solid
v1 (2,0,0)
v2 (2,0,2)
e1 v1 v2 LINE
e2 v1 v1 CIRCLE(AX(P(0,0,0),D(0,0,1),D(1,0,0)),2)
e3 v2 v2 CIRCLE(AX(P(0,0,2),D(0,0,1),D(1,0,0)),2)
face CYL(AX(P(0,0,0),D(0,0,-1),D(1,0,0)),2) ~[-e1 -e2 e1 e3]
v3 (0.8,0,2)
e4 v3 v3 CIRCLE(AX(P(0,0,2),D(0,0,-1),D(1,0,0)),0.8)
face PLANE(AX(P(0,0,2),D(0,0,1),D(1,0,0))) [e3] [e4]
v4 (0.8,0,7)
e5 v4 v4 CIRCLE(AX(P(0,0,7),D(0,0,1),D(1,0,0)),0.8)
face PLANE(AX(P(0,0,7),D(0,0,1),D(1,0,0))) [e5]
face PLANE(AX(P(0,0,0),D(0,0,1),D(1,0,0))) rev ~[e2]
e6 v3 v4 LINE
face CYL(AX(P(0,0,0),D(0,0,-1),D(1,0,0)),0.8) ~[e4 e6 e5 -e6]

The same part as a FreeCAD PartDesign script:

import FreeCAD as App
import Part
import Sketcher
Q = App.Units.Quantity

doc = App.newDocument("Part")
body = doc.addObject("PartDesign::Body", "Body")

# Sketch on XY plane
sketch1 = body.newObject("Sketcher::SketchObject", "Sketch")
sketch1.AttachmentSupport = (doc.getObject("XY_Plane"), [""])
sketch1.MapMode = "FlatFace"
sketch1.addGeometry(Part.Circle(App.Vector(0, 0, 0), App.Vector(0, 0, 1), 2), False)
sketch1.addConstraint([
    Sketcher.Constraint("Coincident", 0, 3, -1, 1),
    Sketcher.Constraint("Diameter", 0, Q("4 mm")),
])
pad1 = body.newObject("PartDesign::Pad", "Pad")
pad1.Profile = sketch1
pad1.Length = 2
body2 = doc.addObject("PartDesign::Body", "Body001")

# Sketch on XY plane
sketch2 = body2.newObject("Sketcher::SketchObject", "Sketch001")
sketch2.AttachmentSupport = (doc.getObject("XY_Plane001"), [""])
sketch2.MapMode = "FlatFace"
sketch2.addGeometry(Part.Circle(App.Vector(0, 0, 0), App.Vector(0, 0, 1), 0.8), False)
sketch2.addConstraint([
    Sketcher.Constraint("Coincident", 0, 3, -1, 1),
    Sketcher.Constraint("Diameter", 0, Q("1.6 mm")),
])
pad2 = body2.newObject("PartDesign::Pad", "Pad001")
pad2.Profile = sketch2
pad2.Length = 7
doc.recompute()

boolean = body2.newObject("PartDesign::Boolean", "Boolean")
boolean.Type = "Fuse"
boolean.addObjects([body])

doc.recompute()
